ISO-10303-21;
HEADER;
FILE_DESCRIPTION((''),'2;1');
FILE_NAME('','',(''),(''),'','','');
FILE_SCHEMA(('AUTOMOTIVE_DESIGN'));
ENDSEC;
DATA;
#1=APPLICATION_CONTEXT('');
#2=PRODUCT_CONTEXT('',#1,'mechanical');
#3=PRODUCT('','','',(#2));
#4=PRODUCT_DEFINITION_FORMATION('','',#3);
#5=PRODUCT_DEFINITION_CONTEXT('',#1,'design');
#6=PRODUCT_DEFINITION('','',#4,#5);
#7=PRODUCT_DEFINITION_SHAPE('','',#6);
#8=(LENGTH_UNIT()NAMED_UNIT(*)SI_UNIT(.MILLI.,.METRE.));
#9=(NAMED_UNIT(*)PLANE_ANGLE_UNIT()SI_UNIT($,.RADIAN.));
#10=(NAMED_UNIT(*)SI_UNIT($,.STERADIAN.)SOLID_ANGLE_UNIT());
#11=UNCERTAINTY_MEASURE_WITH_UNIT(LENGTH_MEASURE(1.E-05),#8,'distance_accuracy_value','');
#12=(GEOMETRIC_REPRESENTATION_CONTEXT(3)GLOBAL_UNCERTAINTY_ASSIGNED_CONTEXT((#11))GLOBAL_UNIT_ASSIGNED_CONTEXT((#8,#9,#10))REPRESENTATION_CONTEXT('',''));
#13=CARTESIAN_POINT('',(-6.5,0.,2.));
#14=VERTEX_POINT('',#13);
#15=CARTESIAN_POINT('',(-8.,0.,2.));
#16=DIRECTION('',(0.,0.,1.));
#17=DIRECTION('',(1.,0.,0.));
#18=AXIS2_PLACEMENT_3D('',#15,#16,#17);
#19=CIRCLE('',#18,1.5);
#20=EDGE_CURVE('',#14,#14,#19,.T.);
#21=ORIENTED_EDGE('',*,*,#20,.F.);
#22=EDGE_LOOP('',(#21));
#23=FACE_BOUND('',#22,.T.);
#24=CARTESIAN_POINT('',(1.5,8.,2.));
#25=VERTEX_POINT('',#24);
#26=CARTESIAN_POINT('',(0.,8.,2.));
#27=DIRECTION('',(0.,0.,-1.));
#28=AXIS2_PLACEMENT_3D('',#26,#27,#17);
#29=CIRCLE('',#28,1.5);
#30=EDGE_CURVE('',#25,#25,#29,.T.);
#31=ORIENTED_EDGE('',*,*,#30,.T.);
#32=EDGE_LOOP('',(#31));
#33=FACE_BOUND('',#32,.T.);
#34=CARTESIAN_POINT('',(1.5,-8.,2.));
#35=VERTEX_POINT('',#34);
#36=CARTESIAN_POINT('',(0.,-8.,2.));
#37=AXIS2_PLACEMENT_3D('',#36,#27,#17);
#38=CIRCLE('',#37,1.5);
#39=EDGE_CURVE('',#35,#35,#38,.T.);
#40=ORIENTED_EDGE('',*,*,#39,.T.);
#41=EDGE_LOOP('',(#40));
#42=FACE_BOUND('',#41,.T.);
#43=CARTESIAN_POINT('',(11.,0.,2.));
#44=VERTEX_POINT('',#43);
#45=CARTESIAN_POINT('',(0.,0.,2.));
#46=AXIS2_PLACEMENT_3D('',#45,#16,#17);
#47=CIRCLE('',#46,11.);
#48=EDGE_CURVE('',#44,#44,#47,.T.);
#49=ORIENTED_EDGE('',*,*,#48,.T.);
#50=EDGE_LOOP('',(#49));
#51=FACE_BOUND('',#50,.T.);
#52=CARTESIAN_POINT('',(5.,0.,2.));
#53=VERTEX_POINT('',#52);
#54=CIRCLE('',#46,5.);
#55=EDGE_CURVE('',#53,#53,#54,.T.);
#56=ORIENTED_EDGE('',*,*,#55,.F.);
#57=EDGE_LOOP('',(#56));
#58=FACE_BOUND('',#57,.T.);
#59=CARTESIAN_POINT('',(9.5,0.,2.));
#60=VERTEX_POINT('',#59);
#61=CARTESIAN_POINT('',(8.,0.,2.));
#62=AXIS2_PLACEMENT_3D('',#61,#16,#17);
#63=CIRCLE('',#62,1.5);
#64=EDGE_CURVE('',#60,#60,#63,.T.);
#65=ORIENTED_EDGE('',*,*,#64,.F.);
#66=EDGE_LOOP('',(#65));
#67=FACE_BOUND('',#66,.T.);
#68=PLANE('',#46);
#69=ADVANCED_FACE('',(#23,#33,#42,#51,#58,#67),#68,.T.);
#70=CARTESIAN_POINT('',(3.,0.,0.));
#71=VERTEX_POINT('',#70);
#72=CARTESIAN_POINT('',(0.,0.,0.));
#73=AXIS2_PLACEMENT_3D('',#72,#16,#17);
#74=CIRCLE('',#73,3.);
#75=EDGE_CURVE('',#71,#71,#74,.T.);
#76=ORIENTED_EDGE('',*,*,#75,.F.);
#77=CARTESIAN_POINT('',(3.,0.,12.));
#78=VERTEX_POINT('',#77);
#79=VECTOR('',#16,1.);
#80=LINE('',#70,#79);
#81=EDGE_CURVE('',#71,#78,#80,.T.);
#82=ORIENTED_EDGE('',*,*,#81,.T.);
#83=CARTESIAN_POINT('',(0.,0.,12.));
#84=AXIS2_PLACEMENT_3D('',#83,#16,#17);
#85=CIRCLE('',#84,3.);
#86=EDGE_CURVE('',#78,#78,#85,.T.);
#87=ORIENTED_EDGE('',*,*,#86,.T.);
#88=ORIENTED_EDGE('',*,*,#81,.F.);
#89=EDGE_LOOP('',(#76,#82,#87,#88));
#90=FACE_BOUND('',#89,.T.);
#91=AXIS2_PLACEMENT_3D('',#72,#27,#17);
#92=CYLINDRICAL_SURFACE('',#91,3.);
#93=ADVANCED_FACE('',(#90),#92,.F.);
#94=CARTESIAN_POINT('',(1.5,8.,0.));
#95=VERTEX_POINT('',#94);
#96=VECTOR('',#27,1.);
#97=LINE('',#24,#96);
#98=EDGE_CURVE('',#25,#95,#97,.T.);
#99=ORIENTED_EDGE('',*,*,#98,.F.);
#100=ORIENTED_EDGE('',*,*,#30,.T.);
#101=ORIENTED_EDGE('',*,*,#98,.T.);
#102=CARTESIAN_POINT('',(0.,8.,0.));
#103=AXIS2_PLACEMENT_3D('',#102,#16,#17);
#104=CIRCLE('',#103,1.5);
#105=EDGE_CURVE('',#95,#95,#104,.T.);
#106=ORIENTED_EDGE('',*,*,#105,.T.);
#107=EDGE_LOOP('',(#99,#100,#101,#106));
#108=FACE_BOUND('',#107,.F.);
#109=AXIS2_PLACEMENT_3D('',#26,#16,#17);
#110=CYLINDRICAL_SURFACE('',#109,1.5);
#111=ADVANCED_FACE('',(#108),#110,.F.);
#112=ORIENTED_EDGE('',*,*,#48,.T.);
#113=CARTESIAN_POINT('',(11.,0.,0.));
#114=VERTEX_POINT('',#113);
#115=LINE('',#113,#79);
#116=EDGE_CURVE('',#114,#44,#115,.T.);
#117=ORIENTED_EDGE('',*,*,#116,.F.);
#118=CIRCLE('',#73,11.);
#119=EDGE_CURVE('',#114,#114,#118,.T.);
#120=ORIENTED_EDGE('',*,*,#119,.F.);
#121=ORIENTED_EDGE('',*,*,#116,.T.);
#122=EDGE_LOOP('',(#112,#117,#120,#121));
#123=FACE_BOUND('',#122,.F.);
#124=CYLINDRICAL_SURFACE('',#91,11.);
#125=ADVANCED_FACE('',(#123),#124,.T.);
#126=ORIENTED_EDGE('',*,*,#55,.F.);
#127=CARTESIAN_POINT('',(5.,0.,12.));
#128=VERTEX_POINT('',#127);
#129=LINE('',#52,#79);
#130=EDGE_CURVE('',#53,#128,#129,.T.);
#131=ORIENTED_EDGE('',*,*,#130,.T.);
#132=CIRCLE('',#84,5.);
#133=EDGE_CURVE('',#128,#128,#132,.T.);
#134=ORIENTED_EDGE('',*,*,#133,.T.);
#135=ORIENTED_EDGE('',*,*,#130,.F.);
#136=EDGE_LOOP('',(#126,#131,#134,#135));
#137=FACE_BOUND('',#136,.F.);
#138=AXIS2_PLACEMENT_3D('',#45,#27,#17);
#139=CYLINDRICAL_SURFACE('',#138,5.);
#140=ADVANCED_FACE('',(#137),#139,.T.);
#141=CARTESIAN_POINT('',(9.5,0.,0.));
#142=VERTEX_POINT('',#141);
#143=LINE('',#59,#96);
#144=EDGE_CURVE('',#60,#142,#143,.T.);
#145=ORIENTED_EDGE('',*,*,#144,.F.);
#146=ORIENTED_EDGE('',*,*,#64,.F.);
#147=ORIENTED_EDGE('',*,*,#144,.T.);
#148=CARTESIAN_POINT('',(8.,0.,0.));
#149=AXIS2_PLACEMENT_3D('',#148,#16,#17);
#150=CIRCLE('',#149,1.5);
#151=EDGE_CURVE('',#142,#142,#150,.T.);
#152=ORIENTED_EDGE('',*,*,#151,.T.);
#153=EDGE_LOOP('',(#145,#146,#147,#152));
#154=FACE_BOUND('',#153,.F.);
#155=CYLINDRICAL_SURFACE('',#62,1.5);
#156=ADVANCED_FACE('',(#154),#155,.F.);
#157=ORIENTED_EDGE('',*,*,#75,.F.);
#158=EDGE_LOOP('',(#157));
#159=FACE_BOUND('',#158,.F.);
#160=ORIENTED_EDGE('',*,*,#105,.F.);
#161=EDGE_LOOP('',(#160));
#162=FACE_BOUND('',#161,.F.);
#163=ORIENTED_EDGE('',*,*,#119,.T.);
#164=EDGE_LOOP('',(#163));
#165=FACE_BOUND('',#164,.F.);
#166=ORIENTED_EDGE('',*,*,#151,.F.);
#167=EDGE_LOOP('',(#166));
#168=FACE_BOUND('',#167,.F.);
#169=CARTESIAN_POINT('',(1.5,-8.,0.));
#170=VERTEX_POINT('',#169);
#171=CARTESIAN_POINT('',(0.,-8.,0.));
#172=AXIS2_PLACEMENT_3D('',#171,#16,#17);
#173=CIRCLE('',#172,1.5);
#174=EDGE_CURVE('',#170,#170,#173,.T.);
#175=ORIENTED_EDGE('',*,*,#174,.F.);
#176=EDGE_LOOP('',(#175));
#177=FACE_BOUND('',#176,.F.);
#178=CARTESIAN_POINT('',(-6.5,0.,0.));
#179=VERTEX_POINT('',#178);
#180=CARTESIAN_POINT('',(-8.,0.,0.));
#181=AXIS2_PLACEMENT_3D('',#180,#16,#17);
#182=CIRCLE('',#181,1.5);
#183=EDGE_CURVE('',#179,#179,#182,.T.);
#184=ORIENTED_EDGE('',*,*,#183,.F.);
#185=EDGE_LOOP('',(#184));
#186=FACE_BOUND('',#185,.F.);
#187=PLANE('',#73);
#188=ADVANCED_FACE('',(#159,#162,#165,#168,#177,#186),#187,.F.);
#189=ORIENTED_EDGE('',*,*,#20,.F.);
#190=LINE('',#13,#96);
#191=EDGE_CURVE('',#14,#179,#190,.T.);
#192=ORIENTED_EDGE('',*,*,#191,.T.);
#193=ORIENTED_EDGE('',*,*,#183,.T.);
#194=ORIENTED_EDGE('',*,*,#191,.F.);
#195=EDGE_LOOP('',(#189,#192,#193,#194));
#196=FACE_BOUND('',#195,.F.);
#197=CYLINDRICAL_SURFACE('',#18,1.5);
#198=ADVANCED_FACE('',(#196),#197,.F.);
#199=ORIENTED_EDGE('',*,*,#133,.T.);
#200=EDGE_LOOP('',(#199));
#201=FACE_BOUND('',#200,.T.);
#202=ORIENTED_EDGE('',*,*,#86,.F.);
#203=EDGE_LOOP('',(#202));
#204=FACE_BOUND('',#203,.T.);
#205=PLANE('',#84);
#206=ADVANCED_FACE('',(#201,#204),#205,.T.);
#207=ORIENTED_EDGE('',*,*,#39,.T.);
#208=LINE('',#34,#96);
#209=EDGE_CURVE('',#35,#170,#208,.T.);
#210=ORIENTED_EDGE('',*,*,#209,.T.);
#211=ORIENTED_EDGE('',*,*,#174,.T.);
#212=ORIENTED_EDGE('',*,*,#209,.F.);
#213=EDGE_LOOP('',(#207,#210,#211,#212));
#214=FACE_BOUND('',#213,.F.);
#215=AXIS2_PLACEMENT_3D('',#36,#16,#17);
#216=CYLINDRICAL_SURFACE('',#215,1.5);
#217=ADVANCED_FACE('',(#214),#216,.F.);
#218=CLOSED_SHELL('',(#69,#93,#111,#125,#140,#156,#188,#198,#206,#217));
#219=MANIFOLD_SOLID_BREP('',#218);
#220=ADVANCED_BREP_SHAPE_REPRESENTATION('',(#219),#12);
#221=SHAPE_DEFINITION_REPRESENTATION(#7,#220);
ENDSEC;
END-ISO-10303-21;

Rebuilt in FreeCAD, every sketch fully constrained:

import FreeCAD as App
import Part
import Sketcher
from FreeCAD import Vector

doc = App.newDocument("Part")
body = doc.addObject("PartDesign::Body", "Body")

sketch1 = doc.addObject("Sketcher::SketchObject", "Sketch")
body.addObject(sketch1)
sketch1.AttachmentSupport = (doc.XY_Plane, [""])
sketch1.MapMode = "FlatFace"
sketch1.addGeometry(Part.Circle(Vector(0, 0, 0), Vector(0, 0, 1), 11), False)
sketch1.addGeometry(Part.Circle(Vector(0, 0, 0), Vector(0, 0, 1), 3), False)
sketch1.addConstraint(Sketcher.Constraint("Coincident", 0, 3, -1, 1))
sketch1.addConstraint(Sketcher.Constraint("Coincident", 1, 3, -1, 1))
sketch1.addConstraint(Sketcher.Constraint("Diameter", 0, 22.0))
sketch1.addConstraint(Sketcher.Constraint("Diameter", 1, 6.0))
pad1 = doc.addObject("PartDesign::Pad", "Pad")
body.addObject(pad1)
pad1.Profile = sketch1
pad1.Length = 2

sketch2 = doc.addObject("Sketcher::SketchObject", "Sketch001")
body.addObject(sketch2)
sketch2.AttachmentSupport = (doc.XY_Plane, [""])
sketch2.MapMode = "FlatFace"
sketch2.AttachmentOffset = App.Placement(Vector(0, 0, 2), App.Rotation())
sketch2.addGeometry(Part.Circle(Vector(0, 0, 0), Vector(0, 0, 1), 5), False)
sketch2.addGeometry(Part.Circle(Vector(0, 0, 0), Vector(0, 0, 1), 3), False)
sketch2.addConstraint(Sketcher.Constraint("Coincident", 0, 3, -1, 1))
sketch2.addConstraint(Sketcher.Constraint("Coincident", 1, 3, -1, 1))
sketch2.addConstraint(Sketcher.Constraint("Diameter", 0, 10.0))
sketch2.addConstraint(Sketcher.Constraint("Diameter", 1, 6.0))
pad2 = doc.addObject("PartDesign::Pad", "Pad001")
body.addObject(pad2)
pad2.Profile = sketch2
pad2.Length = 10

sketch3 = doc.addObject("Sketcher::SketchObject", "Sketch002")
body.addObject(sketch3)
sketch3.AttachmentSupport = (doc.XY_Plane, [""])
sketch3.MapMode = "FlatFace"
sketch3.AttachmentOffset = App.Placement(Vector(0, 0, 2), App.Rotation())
sketch3.addGeometry(Part.Circle(Vector(0, 8, 0), Vector(0, 0, 1), 1.5), False)
sketch3.addGeometry(Part.Circle(Vector(0, -8, 0), Vector(0, 0, 1), 1.5), False)
sketch3.addGeometry(Part.Circle(Vector(-8, 0, 0), Vector(0, 0, 1), 1.5), False)
sketch3.addGeometry(Part.Circle(Vector(8, 0, 0), Vector(0, 0, 1), 1.5), False)
sketch3.addConstraint(Sketcher.Constraint("Equal", 0, 1))
sketch3.addConstraint(Sketcher.Constraint("Equal", 1, 2))
sketch3.addConstraint(Sketcher.Constraint("Equal", 2, 3))
sketch3.addConstraint(Sketcher.Constraint("Symmetric", 0, 3, 1, 3, -1, 1))
sketch3.addConstraint(Sketcher.Constraint("Symmetric", 2, 3, 3, 3, -1, 1))
sketch3.addConstraint(Sketcher.Constraint("PointOnObject", 0, 3, -2))
sketch3.addConstraint(Sketcher.Constraint("PointOnObject", 2, 3, -1))
sketch3.addConstraint(Sketcher.Constraint("Diameter", 0, 3.0))
sketch3.addConstraint(Sketcher.Constraint("DistanceY", 1, 3, 0, 3, 16.0))
sketch3.addConstraint(Sketcher.Constraint("DistanceX", 2, 3, 3, 3, 16.0))
pocket1 = doc.addObject("PartDesign::Pocket", "Pocket")
body.addObject(pocket1)
pocket1.Profile = sketch3
pocket1.Length = 10

doc.recompute()
